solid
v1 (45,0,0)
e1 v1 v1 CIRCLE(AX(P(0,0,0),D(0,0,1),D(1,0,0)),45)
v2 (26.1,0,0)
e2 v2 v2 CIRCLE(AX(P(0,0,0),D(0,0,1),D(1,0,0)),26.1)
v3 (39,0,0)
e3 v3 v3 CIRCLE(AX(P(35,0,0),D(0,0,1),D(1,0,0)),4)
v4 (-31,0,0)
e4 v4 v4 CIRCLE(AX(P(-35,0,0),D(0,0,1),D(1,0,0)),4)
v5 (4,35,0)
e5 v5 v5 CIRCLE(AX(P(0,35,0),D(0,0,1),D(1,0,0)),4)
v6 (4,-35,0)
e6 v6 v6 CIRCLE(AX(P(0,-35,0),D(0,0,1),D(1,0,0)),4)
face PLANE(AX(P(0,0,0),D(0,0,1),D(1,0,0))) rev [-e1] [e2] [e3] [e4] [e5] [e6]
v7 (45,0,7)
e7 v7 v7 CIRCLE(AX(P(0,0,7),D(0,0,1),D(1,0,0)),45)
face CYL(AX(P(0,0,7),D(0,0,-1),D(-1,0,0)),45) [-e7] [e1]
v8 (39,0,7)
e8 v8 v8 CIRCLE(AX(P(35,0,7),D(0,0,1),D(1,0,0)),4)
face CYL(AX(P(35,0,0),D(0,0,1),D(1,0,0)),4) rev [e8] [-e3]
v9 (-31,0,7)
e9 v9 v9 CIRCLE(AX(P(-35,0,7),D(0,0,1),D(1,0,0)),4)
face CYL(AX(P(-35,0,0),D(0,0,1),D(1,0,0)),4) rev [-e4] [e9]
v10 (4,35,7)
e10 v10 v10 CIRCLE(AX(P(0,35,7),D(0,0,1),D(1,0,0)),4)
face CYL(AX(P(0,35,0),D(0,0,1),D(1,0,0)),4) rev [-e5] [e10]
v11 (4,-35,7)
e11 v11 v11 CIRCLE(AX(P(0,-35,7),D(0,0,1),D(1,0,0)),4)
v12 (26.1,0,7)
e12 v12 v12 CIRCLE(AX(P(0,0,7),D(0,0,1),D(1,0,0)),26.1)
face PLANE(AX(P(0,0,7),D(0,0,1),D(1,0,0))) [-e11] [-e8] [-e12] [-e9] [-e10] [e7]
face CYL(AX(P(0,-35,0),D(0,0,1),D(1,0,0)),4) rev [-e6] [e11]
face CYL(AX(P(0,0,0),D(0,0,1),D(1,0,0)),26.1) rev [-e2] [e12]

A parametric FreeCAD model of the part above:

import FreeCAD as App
import Part
import Sketcher

V = App.Vector
Q = App.Units.Quantity

doc = App.newDocument("Part")
body = doc.addObject("PartDesign::Body", "Body")

sketch1 = body.newObject("Sketcher::SketchObject", "Sketch")
sketch1.AttachmentSupport = (doc.getObject("XY_Plane"), [""])
sketch1.MapMode = "FlatFace"
sketch1.addGeometry(Part.Circle(V(0, 0, 0), V(0, 0, 1), 45), False)
sketch1.addConstraint([
    Sketcher.Constraint("Coincident", 0, 3, -1, 1),
    Sketcher.Constraint("Diameter", 0, Q("90 mm")),
])
pad1 = body.newObject("PartDesign::Pad", "Pad")
pad1.Profile = sketch1
pad1.Length = 7

sketch2 = body.newObject("Sketcher::SketchObject", "Sketch001")
sketch2.AttachmentSupport = (doc.getObject("XY_Plane"), [""])
sketch2.MapMode = "FlatFace"
sketch2.AttachmentOffset = App.Placement(V(0, 0, 7), App.Rotation())
sketch2.addGeometry(Part.Circle(V(0, 0, 0), V(0, 0, 1), 26.1), False)
sketch2.addConstraint([
    Sketcher.Constraint("Coincident", 0, 3, -1, 1),
    Sketcher.Constraint("Diameter", 0, Q("52.2 mm")),
])
pocket1 = body.newObject("PartDesign::Pocket", "Pocket")
pocket1.Profile = sketch2
pocket1.Type = "ThroughAll"

sketch3 = body.newObject("Sketcher::SketchObject", "Sketch002")
sketch3.AttachmentSupport = (doc.getObject("XY_Plane"), [""])
sketch3.MapMode = "FlatFace"
sketch3.AttachmentOffset = App.Placement(V(0, 0, 7), App.Rotation())
sketch3.addGeometry([
    Part.Circle(V(0, 35, 0), V(0, 0, 1), 4),
    Part.Circle(V(35, 0, 0), V(0, 0, 1), 4),
    Part.Circle(V(0, -35, 0), V(0, 0, 1), 4),
    Part.Circle(V(-35, 0, 0), V(0, 0, 1), 4),
], False)
sketch3.addConstraint([
    Sketcher.Constraint("Equal", 0, 1),
    Sketcher.Constraint("Equal", 1, 2),
    Sketcher.Constraint("Equal", 2, 3),
    Sketcher.Constraint("Symmetric", 0, 3, 2, 3, -1, 1),
    Sketcher.Constraint("Symmetric", 1, 3, 3, 3, -1, 1),
    Sketcher.Constraint("PointOnObject", 0, 3, -2),
    Sketcher.Constraint("PointOnObject", 1, 3, -1),
    Sketcher.Constraint("Diameter", 0, Q("8 mm")),
    Sketcher.Constraint("DistanceY", -1, 1, 0, 3, Q("35 mm")),
    Sketcher.Constraint("DistanceX", -1, 1, 1, 3, Q("35 mm")),
])
pocket2 = body.newObject("PartDesign::Pocket", "Pocket001")
pocket2.Profile = sketch3
pocket2.Type = "ThroughAll"

doc.recompute()
